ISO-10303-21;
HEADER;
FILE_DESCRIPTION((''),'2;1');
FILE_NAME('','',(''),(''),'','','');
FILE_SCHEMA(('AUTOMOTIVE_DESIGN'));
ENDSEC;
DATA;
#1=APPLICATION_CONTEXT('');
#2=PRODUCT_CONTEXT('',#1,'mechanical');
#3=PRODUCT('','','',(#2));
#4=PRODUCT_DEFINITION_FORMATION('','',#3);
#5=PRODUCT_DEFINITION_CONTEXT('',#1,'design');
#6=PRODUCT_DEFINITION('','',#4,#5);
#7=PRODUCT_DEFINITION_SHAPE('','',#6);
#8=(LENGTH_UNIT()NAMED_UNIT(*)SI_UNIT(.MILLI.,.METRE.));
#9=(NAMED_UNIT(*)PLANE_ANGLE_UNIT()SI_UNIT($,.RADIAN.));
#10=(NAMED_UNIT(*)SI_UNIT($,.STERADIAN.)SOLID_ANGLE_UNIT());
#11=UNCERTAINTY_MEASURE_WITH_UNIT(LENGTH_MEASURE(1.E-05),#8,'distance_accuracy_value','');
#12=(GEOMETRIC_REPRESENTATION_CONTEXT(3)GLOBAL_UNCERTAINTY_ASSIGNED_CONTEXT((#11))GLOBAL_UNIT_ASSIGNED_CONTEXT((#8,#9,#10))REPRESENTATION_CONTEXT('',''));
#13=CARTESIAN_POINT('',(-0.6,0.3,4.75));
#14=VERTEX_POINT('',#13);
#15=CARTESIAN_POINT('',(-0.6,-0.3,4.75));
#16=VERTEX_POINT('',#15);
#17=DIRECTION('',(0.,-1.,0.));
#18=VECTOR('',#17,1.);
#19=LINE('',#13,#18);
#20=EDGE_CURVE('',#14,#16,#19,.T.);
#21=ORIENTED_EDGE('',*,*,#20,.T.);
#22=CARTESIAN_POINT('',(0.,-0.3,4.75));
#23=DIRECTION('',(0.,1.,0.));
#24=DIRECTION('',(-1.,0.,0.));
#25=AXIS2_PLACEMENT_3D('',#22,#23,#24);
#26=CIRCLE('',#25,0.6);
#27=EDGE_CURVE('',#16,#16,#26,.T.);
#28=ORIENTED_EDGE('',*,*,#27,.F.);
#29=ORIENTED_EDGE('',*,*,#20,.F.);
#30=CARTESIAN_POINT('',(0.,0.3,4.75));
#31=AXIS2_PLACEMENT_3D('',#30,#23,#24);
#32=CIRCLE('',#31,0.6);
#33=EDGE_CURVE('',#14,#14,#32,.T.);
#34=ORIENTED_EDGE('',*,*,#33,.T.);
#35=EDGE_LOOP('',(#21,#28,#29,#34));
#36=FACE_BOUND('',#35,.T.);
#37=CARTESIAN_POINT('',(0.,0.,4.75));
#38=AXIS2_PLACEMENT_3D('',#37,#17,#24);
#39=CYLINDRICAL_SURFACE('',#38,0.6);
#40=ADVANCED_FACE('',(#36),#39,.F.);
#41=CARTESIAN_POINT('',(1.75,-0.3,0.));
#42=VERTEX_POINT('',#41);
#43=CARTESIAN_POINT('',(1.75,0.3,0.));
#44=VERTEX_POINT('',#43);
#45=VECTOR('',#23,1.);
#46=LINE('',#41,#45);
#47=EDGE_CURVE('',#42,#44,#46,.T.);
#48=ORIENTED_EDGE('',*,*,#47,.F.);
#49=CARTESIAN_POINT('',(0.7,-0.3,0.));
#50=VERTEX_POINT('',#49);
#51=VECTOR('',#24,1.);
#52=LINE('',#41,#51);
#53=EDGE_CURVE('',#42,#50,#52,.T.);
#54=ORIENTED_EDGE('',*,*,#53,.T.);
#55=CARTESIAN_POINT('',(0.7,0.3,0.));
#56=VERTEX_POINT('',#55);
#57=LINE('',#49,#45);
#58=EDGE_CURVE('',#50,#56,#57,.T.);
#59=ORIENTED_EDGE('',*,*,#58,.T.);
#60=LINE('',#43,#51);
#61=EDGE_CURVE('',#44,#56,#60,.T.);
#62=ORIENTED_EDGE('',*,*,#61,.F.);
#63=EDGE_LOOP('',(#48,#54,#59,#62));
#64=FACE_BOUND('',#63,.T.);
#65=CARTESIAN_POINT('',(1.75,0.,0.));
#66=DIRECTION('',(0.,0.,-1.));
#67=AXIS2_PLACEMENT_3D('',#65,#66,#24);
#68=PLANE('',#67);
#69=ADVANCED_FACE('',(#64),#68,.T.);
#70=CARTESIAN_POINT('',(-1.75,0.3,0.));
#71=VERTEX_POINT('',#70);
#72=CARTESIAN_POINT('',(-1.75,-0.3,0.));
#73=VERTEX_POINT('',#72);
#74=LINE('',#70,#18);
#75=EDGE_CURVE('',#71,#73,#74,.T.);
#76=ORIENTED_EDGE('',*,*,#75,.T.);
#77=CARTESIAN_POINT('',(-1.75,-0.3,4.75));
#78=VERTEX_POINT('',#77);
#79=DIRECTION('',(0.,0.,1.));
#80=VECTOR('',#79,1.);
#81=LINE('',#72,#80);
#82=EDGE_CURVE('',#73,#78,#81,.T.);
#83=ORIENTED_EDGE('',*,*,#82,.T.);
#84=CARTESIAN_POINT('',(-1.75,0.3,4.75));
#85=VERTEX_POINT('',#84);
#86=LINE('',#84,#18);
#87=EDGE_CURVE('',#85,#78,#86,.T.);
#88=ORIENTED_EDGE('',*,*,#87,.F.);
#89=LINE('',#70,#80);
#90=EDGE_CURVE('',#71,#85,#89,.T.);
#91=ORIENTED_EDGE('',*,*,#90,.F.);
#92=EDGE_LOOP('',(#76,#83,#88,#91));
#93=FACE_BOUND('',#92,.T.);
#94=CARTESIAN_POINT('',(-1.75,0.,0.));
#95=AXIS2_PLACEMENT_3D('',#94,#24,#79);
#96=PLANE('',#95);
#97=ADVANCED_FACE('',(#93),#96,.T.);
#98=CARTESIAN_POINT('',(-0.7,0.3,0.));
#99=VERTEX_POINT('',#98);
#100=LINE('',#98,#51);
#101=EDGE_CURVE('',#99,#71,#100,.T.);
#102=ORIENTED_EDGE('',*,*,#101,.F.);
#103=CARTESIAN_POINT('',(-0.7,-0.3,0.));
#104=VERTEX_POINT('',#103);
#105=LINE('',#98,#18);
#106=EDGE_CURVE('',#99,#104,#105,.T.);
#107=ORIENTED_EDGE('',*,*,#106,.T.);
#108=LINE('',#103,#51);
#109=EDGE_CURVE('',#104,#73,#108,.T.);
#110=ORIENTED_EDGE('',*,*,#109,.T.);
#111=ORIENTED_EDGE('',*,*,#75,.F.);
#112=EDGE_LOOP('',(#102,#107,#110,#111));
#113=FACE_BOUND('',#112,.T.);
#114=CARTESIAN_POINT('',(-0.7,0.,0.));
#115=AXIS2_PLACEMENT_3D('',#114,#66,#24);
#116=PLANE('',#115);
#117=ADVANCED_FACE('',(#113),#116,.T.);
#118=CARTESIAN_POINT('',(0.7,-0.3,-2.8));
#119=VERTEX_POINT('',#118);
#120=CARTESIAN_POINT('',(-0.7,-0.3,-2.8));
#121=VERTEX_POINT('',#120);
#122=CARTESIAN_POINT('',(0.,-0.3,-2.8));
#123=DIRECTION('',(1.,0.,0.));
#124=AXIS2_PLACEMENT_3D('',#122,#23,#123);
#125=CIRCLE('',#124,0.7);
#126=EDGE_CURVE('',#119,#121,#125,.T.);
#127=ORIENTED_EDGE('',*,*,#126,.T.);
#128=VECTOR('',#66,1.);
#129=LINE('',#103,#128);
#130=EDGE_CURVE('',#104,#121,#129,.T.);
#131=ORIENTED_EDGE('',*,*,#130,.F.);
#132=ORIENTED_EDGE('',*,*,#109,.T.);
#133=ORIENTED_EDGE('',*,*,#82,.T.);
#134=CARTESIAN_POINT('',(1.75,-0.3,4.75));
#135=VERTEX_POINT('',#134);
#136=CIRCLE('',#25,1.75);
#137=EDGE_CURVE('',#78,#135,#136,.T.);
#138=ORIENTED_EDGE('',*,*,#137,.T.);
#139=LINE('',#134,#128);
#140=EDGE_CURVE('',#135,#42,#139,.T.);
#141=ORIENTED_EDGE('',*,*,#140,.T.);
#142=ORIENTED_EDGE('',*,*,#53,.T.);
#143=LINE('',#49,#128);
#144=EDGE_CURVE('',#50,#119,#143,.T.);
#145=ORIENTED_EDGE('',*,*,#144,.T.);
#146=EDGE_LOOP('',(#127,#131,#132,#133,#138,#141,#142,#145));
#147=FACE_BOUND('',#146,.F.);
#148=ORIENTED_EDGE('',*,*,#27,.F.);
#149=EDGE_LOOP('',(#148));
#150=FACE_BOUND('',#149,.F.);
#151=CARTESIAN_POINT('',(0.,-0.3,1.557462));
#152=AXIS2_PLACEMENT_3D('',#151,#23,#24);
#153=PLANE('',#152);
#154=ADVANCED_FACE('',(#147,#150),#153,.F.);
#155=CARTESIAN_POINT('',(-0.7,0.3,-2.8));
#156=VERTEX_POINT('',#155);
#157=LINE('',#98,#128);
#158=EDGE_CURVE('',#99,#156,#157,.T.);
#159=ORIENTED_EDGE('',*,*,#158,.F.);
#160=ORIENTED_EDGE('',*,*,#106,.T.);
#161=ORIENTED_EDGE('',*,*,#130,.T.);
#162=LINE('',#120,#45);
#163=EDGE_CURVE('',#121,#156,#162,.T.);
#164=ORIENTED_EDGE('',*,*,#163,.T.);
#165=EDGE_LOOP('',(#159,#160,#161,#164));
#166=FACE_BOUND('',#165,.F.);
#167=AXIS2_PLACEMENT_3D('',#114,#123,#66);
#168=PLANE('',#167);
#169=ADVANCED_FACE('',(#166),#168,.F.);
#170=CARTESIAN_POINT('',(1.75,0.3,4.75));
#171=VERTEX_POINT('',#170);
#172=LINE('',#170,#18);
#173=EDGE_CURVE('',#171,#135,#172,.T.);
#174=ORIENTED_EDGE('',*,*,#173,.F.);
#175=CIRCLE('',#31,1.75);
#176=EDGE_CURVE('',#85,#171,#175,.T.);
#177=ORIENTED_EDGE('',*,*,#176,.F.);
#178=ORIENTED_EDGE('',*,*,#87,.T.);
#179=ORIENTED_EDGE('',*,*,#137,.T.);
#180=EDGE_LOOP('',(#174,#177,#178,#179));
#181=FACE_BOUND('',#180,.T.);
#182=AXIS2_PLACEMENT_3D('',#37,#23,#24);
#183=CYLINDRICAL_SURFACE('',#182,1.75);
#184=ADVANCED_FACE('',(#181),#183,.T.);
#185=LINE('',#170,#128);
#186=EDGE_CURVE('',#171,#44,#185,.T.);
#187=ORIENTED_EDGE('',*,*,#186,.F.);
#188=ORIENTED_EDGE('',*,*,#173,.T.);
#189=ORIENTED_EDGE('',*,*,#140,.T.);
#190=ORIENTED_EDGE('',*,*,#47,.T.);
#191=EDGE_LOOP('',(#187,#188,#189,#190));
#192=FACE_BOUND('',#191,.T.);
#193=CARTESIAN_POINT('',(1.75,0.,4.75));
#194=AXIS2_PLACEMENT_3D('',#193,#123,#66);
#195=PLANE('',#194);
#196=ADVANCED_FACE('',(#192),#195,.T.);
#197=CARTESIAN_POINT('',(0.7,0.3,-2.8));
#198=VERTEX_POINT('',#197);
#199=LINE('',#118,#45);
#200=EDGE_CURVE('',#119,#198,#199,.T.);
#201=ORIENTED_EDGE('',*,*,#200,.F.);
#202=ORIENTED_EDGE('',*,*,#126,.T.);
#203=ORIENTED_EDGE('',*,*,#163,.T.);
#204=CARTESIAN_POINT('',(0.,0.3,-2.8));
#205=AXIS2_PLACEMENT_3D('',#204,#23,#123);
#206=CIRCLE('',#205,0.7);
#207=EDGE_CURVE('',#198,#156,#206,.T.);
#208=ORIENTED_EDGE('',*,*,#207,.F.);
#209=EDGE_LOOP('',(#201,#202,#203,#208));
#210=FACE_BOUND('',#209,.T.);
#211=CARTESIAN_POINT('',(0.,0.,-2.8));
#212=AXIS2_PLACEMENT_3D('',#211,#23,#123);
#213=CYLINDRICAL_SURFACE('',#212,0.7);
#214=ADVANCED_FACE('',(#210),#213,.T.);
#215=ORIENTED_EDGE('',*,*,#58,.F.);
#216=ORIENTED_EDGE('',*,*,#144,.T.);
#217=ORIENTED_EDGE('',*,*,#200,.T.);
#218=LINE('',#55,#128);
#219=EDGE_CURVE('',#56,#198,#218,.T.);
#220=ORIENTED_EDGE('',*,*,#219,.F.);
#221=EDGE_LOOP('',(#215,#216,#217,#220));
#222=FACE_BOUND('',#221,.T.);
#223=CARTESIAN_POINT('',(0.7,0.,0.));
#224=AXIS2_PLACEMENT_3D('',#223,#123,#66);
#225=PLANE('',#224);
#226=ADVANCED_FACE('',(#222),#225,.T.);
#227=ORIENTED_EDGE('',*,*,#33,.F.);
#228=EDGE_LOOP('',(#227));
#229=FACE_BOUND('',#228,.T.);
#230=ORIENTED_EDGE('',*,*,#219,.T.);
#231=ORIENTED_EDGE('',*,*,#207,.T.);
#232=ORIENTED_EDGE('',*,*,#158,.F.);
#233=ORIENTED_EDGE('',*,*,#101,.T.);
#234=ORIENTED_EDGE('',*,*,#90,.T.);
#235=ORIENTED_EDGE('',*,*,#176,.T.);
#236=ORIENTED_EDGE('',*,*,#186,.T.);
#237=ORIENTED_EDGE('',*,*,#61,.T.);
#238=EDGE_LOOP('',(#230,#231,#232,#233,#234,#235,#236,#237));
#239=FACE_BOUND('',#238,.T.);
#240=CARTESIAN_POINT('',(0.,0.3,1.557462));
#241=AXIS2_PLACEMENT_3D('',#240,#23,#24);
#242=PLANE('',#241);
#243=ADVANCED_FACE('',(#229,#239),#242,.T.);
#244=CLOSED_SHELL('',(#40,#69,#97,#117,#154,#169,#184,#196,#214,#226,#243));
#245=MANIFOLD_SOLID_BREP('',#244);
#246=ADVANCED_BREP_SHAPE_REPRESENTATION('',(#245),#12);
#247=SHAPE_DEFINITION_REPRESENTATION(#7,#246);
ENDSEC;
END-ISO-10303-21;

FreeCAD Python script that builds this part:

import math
import FreeCAD as App
import Part
import Sketcher

V = App.Vector
Q = App.Units.Quantity

doc = App.newDocument("Part")
body = doc.addObject("PartDesign::Body", "Body")

sketch1 = body.newObject("Sketcher::SketchObject", "Sketch")
sketch1.AttachmentSupport = (doc.getObject("XZ_Plane"), [""])
sketch1.MapMode = "FlatFace"
sketch1.addGeometry(Part.LineSegment(V(1.75, 4.75, 0), V(1.75, 0, 0)), False)
sketch1.addGeometry(Part.LineSegment(V(1.75, 0, 0), V(0.7, 0, 0)), False)
sketch1.addGeometry(Part.LineSegment(V(0.7, 0, 0), V(0.7, -2.8, 0)), False)
sketch1.addGeometry(Part.ArcOfCircle(Part.Circle(V(0, -2.8, 0), V(0, 0, 1), 0.7), math.radians(180), math.radians(360)), False)
sketch1.addGeometry(Part.LineSegment(V(-0.7, -2.8, 0), V(-0.7, 0, 0)), False)
sketch1.addGeometry(Part.LineSegment(V(-0.7, 0, 0), V(-1.75, 0, 0)), False)
sketch1.addGeometry(Part.LineSegment(V(-1.75, 0, 0), V(-1.75, 4.75, 0)), False)
sketch1.addGeometry(Part.ArcOfCircle(Part.Circle(V(0, 4.75, 0), V(0, 0, 1), 1.75), math.radians(0), math.radians(180)), False)
sketch1.addGeometry(Part.Circle(V(0, 4.75, 0), V(0, 0, 1), 0.6), False)
sketch1.addConstraint(Sketcher.Constraint("Coincident", 0, 2, 1, 1))
sketch1.addConstraint(Sketcher.Constraint("Coincident", 1, 2, 2, 1))
sketch1.addConstraint(Sketcher.Constraint("Tangent", 2, 2, 3, 2))
sketch1.addConstraint(Sketcher.Constraint("Tangent", 3, 1, 4, 1))
sketch1.addConstraint(Sketcher.Constraint("Coincident", 4, 2, 5, 1))
sketch1.addConstraint(Sketcher.Constraint("Coincident", 5, 2, 6, 1))
sketch1.addConstraint(Sketcher.Constraint("Tangent", 6, 2, 7, 2))
sketch1.addConstraint(Sketcher.Constraint("Tangent", 7, 1, 0, 1))
sketch1.addConstraint(Sketcher.Constraint("Vertical", 0))
sketch1.addConstraint(Sketcher.Constraint("Horizontal", 1))
sketch1.addConstraint(Sketcher.Constraint("Vertical", 2))
sketch1.addConstraint(Sketcher.Constraint("Vertical", 4))
sketch1.addConstraint(Sketcher.Constraint("Horizontal", 5))
sketch1.addConstraint(Sketcher.Constraint("Vertical", 6))
sketch1.addConstraint(Sketcher.Constraint("Coincident", 8, 3, 7, 3))
sketch1.addConstraint(Sketcher.Constraint("Symmetric", 1, 2, 4, 2, -1, 1))
sketch1.addConstraint(Sketcher.Constraint("Symmetric", 0, 2, 5, 2, -2))
sketch1.addConstraint(Sketcher.Constraint("Diameter", 8, Q("1.2 mm")))
sketch1.addConstraint(Sketcher.Constraint("Radius", 3, Q("0.7 mm")))
sketch1.addConstraint(Sketcher.Constraint("Radius", 7, Q("1.75 mm")))
sketch1.addConstraint(Sketcher.Constraint("DistanceY", 2, 2, 2, 1, Q("2.8 mm")))
sketch1.addConstraint(Sketcher.Constraint("DistanceY", 0, 2, 0, 1, Q("4.75 mm")))
pad1 = body.newObject("PartDesign::Pad", "Pad")
pad1.Profile = sketch1
pad1.Length = 0.6
pad1.Midplane = True

doc.recompute()
